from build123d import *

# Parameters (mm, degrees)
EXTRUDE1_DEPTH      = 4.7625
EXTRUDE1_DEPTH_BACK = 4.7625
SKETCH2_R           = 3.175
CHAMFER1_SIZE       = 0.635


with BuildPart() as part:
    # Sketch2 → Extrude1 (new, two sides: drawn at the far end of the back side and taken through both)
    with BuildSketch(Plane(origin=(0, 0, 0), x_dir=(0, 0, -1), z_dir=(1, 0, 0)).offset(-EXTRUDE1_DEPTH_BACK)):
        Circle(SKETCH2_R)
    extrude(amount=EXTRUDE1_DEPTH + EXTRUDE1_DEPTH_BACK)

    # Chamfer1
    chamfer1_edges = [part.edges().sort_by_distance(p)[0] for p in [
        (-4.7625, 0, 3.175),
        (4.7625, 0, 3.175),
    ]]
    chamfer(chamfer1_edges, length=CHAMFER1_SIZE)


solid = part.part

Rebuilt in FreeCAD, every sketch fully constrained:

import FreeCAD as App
import Part
import Sketcher

V = App.Vector
Q = App.Units.Quantity


def edges_at(feature, points):
    """Names of the edges that pass closest to the given points."""
    edges = feature.Shape.Edges
    near = lambda p: min(range(len(edges)), key=lambda i: edges[i].distToShape(Part.Vertex(*p))[0])
    return sorted({f"Edge{near(p) + 1}" for p in points})

doc = App.newDocument("Part")
body = doc.addObject("PartDesign::Body", "Body")

sketch1 = body.newObject("Sketcher::SketchObject", "Sketch")
sketch1.AttachmentSupport = (doc.getObject("YZ_Plane"), [""])
sketch1.MapMode = "FlatFace"
sketch1.addGeometry(Part.Circle(V(0, 0, 0), V(0, 0, 1), 3.2), False)
sketch1.addConstraint(Sketcher.Constraint("Coincident", 0, 3, -1, 1))
sketch1.addConstraint(Sketcher.Constraint("Diameter", 0, Q("0.25 in")))
pad1 = body.newObject("PartDesign::Pad", "Pad")
pad1.Profile = sketch1
pad1.Type = "TwoLengths"
pad1.Length = Q("0.1875 in")
pad1.Length2 = Q("0.1875 in")
doc.recompute()

chamfer = body.newObject("PartDesign::Chamfer", "Chamfer")
chamfer.Base = (pad1, edges_at(pad1, [(-4.763, 0, 3.175), (4.763, 0, 3.175)]))
chamfer.Size = Q("0.025 in")

doc.recompute()
